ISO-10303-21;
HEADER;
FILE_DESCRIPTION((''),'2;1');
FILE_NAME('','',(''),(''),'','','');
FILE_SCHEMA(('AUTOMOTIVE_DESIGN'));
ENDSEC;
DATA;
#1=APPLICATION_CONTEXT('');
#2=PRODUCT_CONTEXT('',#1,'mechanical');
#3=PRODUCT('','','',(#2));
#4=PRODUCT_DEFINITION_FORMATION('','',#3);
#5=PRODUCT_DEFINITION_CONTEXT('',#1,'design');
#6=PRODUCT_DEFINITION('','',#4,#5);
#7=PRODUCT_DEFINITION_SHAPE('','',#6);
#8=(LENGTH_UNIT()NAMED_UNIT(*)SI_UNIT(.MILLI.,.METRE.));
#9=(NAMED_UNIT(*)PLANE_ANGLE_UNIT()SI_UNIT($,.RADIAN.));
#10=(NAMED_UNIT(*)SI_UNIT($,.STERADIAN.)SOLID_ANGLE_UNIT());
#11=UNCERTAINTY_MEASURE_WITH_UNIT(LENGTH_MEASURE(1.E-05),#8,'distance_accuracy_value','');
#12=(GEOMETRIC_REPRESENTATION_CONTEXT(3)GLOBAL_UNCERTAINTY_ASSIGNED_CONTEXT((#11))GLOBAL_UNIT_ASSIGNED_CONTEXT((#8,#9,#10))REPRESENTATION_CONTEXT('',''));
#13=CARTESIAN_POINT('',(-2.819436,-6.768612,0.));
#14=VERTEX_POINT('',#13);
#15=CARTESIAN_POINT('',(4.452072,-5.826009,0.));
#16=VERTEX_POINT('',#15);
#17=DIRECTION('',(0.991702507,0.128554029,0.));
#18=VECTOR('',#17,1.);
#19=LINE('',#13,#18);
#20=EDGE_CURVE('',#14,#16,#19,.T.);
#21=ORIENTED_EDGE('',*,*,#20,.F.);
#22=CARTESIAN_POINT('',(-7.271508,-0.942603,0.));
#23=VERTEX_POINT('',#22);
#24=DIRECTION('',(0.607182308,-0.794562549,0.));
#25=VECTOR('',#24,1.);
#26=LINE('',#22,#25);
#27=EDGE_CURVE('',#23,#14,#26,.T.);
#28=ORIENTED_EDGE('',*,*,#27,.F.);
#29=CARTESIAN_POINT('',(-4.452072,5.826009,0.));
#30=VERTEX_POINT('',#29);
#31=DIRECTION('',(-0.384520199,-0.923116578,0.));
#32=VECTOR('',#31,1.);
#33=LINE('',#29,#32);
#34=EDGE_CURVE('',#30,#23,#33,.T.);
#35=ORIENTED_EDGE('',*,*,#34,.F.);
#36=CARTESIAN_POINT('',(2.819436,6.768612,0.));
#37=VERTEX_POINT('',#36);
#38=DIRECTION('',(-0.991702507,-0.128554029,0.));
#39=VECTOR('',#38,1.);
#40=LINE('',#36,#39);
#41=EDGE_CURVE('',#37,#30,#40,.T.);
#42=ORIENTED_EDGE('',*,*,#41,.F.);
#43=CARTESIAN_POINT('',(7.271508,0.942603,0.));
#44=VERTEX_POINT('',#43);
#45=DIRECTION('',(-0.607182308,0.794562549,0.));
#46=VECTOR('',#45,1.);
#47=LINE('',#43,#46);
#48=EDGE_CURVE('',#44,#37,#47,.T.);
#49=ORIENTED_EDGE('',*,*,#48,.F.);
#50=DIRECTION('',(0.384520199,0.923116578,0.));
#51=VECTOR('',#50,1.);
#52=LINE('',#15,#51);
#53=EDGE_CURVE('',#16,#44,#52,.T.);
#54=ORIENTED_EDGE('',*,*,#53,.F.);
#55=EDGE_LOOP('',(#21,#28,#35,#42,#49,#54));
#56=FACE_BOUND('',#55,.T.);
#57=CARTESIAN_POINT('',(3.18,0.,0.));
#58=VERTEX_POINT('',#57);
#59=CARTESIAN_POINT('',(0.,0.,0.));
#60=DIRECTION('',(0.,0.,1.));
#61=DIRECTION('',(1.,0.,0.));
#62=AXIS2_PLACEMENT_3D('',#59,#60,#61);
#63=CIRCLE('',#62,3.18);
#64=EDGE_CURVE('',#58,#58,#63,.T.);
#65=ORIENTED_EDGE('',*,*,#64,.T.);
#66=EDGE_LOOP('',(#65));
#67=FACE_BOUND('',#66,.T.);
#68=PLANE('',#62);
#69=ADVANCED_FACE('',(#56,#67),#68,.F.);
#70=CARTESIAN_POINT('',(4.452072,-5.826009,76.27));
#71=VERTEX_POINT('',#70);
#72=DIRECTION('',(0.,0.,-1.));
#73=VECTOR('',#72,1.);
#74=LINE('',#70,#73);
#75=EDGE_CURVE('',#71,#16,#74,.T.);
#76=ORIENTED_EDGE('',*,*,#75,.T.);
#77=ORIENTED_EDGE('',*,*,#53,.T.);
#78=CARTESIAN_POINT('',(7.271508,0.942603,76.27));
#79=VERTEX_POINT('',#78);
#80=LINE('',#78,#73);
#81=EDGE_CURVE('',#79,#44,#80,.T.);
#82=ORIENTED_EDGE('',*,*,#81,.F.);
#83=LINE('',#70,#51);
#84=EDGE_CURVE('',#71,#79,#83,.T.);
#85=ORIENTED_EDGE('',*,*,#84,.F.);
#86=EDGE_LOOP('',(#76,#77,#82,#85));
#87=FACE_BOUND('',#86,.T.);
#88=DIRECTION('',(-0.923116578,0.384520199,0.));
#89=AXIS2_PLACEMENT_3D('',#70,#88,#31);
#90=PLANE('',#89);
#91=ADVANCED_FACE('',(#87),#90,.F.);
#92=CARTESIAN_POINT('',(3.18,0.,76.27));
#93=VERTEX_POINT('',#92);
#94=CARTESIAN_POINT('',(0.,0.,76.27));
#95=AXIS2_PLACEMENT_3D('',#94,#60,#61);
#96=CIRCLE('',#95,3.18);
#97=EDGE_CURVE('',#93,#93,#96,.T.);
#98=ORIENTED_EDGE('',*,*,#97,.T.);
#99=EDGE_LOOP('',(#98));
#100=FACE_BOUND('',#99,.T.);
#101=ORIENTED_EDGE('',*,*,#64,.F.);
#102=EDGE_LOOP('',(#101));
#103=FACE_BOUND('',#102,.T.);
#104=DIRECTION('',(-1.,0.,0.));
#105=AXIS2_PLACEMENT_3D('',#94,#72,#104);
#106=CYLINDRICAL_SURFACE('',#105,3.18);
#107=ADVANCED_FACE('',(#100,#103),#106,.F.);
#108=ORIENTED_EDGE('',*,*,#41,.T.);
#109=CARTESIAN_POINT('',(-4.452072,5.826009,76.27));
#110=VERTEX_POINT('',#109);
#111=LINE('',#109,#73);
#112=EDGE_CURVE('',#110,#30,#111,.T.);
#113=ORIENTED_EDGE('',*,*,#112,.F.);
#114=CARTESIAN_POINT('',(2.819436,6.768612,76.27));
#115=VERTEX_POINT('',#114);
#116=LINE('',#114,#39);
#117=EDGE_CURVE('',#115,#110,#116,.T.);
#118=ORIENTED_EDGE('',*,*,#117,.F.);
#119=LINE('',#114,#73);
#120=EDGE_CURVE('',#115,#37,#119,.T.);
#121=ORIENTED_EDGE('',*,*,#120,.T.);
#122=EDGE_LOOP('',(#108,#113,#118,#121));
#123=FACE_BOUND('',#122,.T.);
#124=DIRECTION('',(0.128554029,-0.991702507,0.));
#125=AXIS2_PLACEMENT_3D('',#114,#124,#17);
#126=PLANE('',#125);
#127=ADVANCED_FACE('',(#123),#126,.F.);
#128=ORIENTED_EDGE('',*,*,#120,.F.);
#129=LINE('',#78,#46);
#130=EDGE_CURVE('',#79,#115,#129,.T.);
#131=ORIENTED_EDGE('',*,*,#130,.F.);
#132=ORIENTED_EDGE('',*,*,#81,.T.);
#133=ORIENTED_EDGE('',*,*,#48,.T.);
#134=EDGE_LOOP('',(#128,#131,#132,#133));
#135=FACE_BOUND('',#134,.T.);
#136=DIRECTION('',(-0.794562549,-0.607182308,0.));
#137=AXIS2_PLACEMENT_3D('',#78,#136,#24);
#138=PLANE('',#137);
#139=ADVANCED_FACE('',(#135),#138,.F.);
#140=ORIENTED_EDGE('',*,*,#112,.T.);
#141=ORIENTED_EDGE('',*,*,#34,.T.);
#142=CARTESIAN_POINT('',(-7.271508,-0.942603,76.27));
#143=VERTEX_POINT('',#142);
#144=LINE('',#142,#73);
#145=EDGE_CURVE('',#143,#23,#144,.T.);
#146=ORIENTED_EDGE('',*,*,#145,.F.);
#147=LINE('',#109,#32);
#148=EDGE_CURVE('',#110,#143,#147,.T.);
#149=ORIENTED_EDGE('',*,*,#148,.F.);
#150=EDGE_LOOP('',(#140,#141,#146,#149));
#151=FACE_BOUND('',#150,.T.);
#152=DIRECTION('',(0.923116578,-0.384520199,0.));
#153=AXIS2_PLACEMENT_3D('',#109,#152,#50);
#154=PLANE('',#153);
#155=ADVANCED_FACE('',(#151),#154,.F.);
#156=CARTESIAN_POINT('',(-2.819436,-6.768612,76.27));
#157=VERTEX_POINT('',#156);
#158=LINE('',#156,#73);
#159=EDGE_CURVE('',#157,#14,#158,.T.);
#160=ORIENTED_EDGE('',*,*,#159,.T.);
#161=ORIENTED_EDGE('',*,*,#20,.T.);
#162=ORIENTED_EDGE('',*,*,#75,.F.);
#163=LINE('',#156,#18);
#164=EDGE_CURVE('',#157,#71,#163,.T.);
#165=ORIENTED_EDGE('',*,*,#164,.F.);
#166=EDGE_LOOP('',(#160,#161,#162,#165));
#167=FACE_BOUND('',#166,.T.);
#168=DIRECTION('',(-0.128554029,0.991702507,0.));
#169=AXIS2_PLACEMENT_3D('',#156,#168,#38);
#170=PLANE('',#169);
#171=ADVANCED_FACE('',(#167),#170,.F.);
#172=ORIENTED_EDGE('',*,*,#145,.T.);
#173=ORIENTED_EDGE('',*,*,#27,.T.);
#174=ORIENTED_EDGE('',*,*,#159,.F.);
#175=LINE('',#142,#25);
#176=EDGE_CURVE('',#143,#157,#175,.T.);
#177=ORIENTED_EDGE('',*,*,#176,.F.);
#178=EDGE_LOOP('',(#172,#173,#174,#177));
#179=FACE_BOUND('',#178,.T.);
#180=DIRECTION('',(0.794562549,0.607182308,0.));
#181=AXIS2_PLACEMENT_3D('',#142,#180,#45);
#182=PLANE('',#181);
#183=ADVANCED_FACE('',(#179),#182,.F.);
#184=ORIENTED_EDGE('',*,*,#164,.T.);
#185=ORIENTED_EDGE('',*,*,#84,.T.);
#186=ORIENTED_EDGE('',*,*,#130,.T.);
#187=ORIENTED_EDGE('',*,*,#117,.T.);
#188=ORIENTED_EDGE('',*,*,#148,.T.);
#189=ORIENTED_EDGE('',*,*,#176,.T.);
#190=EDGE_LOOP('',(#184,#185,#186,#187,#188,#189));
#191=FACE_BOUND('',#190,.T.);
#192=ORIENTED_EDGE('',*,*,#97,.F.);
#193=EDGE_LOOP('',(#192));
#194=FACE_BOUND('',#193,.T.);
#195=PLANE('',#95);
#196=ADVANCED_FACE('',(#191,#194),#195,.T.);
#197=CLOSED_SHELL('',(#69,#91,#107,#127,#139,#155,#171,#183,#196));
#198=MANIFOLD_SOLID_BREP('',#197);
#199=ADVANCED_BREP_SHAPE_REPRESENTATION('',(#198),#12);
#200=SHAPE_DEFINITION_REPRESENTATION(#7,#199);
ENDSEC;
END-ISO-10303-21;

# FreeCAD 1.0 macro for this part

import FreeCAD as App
import Part
import Sketcher

doc = App.newDocument("Part")
body = doc.addObject("PartDesign::Body", "Body")

# Sketch on XY plane
sketch1 = body.newObject("Sketcher::SketchObject", "Sketch")
sketch1.AttachmentSupport = (doc.getObject("XY_Plane"), [""])
sketch1.MapMode = "FlatFace"
sketch1.addGeometry(Part.LineSegment(App.Vector(7.271508, 0.942603, 0), App.Vector(2.819436, 6.768612, 0)), False)
sketch1.addGeometry(Part.LineSegment(App.Vector(2.819436, 6.768612, 0), App.Vector(-4.452072, 5.826009, 0)), False)
sketch1.addGeometry(Part.LineSegment(App.Vector(-4.452072, 5.826009, 0), App.Vector(-7.271508, -0.942603, 0)), False)
sketch1.addGeometry(Part.LineSegment(App.Vector(-7.271508, -0.942603, 0), App.Vector(-2.819436, -6.768612, 0)), False)
sketch1.addGeometry(Part.LineSegment(App.Vector(-2.819436, -6.768612, 0), App.Vector(4.452072, -5.826009, 0)), False)
sketch1.addGeometry(Part.LineSegment(App.Vector(4.452072, -5.826009, 0), App.Vector(7.271508, 0.942603, 0)), False)
sketch1.addGeometry(Part.Circle(App.Vector(0, 0, 0), App.Vector(0, 0, 1), 3.18), False)
sketch1.addConstraint(Sketcher.Constraint("Coincident", 0, 2, 1, 1))
sketch1.addConstraint(Sketcher.Constraint("Coincident", 1, 2, 2, 1))
sketch1.addConstraint(Sketcher.Constraint("Coincident", 2, 2, 3, 1))
sketch1.addConstraint(Sketcher.Constraint("Coincident", 3, 2, 4, 1))
sketch1.addConstraint(Sketcher.Constraint("Coincident", 4, 2, 5, 1))
sketch1.addConstraint(Sketcher.Constraint("Coincident", 5, 2, 0, 1))
sketch1.addConstraint(Sketcher.Constraint("Coincident", 6, 3, -1, 1))
sketch1.addConstraint(Sketcher.Constraint("Symmetric", 0, 2, 3, 2, -1, 1))
sketch1.addConstraint(Sketcher.Constraint("Symmetric", 1, 2, 4, 2, -1, 1))
sketch1.addConstraint(Sketcher.Constraint("Symmetric", 2, 2, 5, 2, -1, 1))
sketch1.addConstraint(Sketcher.Constraint("Equal", 0, 1))
sketch1.addConstraint(Sketcher.Constraint("Equal", 1, 2))
sketch1.addConstraint(Sketcher.Constraint("Diameter", 6, 6.36))
sketch1.addConstraint(Sketcher.Constraint("Distance", 0, 7.332348))
sketch1.addConstraint(Sketcher.Constraint("DistanceY", -1, 1, 1, 2, 5.826009))
sketch1.addConstraint(Sketcher.Constraint("DistanceX", 2, 2, -1, 1, 7.271508))
sketch1.addConstraint(Sketcher.Constraint("DistanceX", 1, 2, 0, 2, 7.271508))
pad1 = body.newObject("PartDesign::Pad", "Pad")
pad1.Profile = sketch1
pad1.Length = 76.27

doc.recompute()
